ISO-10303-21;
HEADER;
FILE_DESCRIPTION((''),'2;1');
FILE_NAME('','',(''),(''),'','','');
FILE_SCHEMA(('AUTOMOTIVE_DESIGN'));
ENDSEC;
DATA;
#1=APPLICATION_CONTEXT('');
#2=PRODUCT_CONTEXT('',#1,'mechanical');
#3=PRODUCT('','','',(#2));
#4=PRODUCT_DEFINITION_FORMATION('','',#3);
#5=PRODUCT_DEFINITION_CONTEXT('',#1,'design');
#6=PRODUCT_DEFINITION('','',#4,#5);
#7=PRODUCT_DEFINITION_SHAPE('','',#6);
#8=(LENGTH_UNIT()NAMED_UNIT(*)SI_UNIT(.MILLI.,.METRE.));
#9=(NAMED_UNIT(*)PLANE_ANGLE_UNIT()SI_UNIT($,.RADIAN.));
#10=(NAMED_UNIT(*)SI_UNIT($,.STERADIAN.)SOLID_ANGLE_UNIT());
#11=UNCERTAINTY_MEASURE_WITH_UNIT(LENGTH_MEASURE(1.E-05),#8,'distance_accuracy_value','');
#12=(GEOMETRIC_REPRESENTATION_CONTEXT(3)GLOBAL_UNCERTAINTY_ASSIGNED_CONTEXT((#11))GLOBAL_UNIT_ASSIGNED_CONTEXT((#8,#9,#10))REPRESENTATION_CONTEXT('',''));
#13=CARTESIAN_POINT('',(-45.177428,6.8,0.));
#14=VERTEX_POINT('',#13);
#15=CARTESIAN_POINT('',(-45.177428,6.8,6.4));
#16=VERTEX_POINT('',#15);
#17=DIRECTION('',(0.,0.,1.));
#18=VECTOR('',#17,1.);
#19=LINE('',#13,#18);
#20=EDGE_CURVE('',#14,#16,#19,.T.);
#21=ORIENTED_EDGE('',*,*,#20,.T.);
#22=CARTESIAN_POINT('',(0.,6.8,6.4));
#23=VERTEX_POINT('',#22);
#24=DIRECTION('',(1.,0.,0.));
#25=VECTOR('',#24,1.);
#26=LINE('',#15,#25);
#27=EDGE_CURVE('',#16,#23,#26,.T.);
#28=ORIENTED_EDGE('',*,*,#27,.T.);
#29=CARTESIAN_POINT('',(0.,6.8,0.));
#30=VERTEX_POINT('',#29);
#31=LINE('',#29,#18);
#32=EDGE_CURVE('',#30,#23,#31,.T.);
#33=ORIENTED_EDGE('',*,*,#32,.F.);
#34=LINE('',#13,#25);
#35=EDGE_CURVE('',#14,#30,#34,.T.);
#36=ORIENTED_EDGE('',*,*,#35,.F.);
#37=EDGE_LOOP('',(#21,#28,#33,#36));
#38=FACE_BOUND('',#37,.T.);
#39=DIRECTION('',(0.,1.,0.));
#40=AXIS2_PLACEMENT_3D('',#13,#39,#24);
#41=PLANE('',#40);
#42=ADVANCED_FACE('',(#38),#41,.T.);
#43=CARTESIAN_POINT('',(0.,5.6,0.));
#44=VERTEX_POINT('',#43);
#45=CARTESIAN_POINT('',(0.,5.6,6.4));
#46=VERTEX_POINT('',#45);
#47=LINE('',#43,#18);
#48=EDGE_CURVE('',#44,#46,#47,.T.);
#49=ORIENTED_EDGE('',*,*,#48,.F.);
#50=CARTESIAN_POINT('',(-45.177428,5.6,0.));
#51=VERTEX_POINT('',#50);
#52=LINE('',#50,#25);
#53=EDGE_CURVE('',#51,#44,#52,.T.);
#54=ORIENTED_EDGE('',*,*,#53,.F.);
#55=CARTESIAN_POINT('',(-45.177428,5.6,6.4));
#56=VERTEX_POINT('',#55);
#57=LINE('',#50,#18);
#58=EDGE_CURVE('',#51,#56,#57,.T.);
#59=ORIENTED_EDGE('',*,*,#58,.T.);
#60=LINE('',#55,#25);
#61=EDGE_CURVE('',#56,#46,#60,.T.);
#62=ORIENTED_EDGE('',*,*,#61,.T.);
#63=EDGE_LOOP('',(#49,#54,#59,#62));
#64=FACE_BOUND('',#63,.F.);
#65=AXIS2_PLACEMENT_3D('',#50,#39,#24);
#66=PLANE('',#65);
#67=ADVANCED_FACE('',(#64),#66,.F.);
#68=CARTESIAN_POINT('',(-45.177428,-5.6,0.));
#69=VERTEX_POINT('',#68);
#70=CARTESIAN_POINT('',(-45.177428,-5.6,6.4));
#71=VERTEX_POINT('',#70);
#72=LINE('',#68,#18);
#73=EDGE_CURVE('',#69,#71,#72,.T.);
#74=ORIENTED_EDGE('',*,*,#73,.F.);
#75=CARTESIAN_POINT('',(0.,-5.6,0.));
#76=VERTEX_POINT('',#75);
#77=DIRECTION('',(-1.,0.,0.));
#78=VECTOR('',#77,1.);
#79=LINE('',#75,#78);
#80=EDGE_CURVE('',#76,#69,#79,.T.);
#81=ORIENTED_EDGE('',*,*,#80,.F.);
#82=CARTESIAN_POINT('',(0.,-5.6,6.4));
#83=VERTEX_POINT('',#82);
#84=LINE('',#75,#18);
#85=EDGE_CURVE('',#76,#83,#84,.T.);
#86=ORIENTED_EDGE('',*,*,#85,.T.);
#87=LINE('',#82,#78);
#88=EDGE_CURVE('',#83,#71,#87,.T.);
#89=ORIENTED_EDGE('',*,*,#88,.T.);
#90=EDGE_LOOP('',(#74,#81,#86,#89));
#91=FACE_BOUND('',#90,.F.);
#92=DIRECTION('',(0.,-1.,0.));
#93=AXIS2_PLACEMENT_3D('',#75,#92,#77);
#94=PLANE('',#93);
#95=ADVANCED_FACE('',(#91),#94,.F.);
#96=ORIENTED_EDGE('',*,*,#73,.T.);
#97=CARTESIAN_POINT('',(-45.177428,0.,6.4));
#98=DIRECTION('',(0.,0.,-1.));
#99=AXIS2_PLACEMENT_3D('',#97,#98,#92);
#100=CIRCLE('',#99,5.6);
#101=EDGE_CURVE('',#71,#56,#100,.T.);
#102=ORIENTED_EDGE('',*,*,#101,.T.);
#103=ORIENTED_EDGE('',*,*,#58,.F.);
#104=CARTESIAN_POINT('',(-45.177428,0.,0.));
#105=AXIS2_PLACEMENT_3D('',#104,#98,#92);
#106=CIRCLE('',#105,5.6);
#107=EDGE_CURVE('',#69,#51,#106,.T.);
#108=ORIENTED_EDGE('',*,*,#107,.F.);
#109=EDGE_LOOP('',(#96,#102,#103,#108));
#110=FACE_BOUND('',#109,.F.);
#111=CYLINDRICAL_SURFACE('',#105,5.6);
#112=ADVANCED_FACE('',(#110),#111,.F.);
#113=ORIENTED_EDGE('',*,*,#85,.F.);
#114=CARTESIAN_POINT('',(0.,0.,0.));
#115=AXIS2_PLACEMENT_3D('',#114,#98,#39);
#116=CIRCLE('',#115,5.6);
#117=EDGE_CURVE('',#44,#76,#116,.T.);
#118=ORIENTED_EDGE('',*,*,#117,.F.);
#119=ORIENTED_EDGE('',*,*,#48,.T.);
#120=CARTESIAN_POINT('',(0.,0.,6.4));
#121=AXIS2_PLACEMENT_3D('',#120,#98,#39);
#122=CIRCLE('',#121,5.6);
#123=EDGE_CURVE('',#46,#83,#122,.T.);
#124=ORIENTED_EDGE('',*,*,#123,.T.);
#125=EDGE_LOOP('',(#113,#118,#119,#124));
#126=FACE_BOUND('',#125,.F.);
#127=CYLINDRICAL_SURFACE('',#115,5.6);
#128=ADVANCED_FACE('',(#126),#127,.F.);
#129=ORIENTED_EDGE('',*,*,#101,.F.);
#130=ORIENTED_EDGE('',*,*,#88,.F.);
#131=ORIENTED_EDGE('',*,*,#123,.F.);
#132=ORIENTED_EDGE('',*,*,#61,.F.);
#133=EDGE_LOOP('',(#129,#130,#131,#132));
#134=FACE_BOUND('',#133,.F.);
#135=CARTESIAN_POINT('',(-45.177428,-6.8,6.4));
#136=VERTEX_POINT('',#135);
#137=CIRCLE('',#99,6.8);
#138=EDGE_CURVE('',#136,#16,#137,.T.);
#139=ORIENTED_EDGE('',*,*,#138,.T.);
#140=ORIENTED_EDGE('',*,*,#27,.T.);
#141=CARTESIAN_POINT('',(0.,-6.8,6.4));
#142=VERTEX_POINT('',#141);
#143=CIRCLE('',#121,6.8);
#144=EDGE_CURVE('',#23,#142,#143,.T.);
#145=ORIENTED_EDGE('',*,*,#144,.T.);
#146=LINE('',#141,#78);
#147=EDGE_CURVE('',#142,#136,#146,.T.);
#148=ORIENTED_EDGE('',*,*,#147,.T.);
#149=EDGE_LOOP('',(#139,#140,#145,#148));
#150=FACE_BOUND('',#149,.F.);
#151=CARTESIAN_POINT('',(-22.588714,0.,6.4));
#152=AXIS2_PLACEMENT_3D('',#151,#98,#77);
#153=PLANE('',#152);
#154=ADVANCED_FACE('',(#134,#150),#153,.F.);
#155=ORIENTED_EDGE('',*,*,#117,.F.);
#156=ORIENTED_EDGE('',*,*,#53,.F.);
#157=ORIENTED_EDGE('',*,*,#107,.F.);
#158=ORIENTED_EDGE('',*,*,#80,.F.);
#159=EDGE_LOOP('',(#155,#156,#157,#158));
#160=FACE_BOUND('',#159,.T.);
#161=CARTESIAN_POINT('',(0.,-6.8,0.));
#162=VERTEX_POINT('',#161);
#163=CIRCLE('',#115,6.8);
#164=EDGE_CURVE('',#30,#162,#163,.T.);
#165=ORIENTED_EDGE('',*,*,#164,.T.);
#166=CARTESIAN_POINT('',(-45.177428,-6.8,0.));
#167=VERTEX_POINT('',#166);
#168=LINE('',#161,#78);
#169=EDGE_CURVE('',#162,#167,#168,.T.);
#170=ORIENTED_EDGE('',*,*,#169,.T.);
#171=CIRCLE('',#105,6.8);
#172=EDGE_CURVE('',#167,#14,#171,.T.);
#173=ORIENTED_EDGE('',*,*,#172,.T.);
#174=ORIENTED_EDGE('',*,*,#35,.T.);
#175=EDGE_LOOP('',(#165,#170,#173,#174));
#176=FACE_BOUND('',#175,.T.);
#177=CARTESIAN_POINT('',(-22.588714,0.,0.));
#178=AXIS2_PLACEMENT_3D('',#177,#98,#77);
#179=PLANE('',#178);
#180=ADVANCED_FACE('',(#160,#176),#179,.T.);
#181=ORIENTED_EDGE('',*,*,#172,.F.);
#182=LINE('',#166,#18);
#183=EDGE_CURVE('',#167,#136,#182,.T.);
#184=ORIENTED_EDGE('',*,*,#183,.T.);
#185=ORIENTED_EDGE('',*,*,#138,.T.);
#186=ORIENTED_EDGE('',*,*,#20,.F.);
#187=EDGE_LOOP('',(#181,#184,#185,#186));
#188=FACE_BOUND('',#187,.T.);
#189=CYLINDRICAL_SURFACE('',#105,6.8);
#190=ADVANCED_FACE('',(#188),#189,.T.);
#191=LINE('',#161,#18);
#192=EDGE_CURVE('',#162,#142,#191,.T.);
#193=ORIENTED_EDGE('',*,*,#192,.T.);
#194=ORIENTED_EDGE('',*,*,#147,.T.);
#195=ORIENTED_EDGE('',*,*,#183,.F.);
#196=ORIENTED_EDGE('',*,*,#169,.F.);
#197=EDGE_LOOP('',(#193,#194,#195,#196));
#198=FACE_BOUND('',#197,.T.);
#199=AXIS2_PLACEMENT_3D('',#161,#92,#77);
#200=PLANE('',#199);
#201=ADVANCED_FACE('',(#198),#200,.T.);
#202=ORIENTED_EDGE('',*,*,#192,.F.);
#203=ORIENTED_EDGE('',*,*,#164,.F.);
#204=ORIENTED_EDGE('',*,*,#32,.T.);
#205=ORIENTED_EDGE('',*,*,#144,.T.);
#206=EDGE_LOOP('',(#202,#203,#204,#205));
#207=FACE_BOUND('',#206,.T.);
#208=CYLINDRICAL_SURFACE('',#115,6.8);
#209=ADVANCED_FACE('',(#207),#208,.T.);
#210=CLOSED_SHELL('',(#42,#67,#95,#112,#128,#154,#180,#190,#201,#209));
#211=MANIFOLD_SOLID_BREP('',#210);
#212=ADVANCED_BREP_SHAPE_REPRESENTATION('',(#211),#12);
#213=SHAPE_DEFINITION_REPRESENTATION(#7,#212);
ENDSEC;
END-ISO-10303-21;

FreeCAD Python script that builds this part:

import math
import FreeCAD as App
import Part
import Sketcher
Q = App.Units.Quantity

doc = App.newDocument("Part")
body = doc.addObject("PartDesign::Body", "Body")

# Sketch on XY plane
sketch1 = doc.addObject("Sketcher::SketchObject", "Sketch")
body.addObject(sketch1)
sketch1.AttachmentSupport = (doc.XY_Plane, [""])
sketch1.MapMode = "FlatFace"
sketch1.addGeometry(Part.LineSegment(App.Vector(-45, -7, 0), App.Vector(0, -7, 0)), False)
sketch1.addGeometry(Part.ArcOfCircle(Part.Circle(App.Vector(0, 0, 0), App.Vector(0, 0, 1), 7), math.radians(-90), math.radians(90)), False)
sketch1.addGeometry(Part.LineSegment(App.Vector(0, 7, 0), App.Vector(-45, 7, 0)), False)
sketch1.addGeometry(Part.ArcOfCircle(Part.Circle(App.Vector(-45, 0, 0), App.Vector(0, 0, 1), 7), math.radians(90), math.radians(270)), False)
sketch1.addGeometry(Part.LineSegment(App.Vector(0, -6, 0), App.Vector(-45, -6, 0)), False)
sketch1.addGeometry(Part.ArcOfCircle(Part.Circle(App.Vector(-45, 0, 0), App.Vector(0, 0, 1), 6), math.radians(90), math.radians(270)), False)
sketch1.addGeometry(Part.LineSegment(App.Vector(-45, 6, 0), App.Vector(0, 6, 0)), False)
sketch1.addGeometry(Part.ArcOfCircle(Part.Circle(App.Vector(0, 0, 0), App.Vector(0, 0, 1), 6), math.radians(-90), math.radians(90)), False)
sketch1.addConstraint(Sketcher.Constraint("Tangent", 0, 2, 1, 1))
sketch1.addConstraint(Sketcher.Constraint("Tangent", 1, 2, 2, 1))
sketch1.addConstraint(Sketcher.Constraint("Tangent", 2, 2, 3, 1))
sketch1.addConstraint(Sketcher.Constraint("Tangent", 3, 2, 0, 1))
sketch1.addConstraint(Sketcher.Constraint("Tangent", 4, 2, 5, 2))
sketch1.addConstraint(Sketcher.Constraint("Tangent", 5, 1, 6, 1))
sketch1.addConstraint(Sketcher.Constraint("Tangent", 6, 2, 7, 2))
sketch1.addConstraint(Sketcher.Constraint("Tangent", 7, 1, 4, 1))
sketch1.addConstraint(Sketcher.Constraint("Horizontal", 0))
sketch1.addConstraint(Sketcher.Constraint("Horizontal", 2))
sketch1.addConstraint(Sketcher.Constraint("Horizontal", 4))
sketch1.addConstraint(Sketcher.Constraint("Horizontal", 6))
sketch1.addConstraint(Sketcher.Constraint("Coincident", 1, 3, -1, 1))
sketch1.addConstraint(Sketcher.Constraint("Coincident", 7, 3, -1, 1))
sketch1.addConstraint(Sketcher.Constraint("Vertical", 5, 3, 2, 2))
sketch1.addConstraint(Sketcher.Constraint("Radius", 1, Q("6.8 mm")))
sketch1.addConstraint(Sketcher.Constraint("Radius", 5, Q("5.6 mm")))
sketch1.addConstraint(Sketcher.Constraint("DistanceX", 0, 1, 0, 2, Q("45.177428 mm")))
pad1 = doc.addObject("PartDesign::Pad", "Pad")
body.addObject(pad1)
pad1.Profile = sketch1
pad1.Length = 6.4

doc.recompute()
